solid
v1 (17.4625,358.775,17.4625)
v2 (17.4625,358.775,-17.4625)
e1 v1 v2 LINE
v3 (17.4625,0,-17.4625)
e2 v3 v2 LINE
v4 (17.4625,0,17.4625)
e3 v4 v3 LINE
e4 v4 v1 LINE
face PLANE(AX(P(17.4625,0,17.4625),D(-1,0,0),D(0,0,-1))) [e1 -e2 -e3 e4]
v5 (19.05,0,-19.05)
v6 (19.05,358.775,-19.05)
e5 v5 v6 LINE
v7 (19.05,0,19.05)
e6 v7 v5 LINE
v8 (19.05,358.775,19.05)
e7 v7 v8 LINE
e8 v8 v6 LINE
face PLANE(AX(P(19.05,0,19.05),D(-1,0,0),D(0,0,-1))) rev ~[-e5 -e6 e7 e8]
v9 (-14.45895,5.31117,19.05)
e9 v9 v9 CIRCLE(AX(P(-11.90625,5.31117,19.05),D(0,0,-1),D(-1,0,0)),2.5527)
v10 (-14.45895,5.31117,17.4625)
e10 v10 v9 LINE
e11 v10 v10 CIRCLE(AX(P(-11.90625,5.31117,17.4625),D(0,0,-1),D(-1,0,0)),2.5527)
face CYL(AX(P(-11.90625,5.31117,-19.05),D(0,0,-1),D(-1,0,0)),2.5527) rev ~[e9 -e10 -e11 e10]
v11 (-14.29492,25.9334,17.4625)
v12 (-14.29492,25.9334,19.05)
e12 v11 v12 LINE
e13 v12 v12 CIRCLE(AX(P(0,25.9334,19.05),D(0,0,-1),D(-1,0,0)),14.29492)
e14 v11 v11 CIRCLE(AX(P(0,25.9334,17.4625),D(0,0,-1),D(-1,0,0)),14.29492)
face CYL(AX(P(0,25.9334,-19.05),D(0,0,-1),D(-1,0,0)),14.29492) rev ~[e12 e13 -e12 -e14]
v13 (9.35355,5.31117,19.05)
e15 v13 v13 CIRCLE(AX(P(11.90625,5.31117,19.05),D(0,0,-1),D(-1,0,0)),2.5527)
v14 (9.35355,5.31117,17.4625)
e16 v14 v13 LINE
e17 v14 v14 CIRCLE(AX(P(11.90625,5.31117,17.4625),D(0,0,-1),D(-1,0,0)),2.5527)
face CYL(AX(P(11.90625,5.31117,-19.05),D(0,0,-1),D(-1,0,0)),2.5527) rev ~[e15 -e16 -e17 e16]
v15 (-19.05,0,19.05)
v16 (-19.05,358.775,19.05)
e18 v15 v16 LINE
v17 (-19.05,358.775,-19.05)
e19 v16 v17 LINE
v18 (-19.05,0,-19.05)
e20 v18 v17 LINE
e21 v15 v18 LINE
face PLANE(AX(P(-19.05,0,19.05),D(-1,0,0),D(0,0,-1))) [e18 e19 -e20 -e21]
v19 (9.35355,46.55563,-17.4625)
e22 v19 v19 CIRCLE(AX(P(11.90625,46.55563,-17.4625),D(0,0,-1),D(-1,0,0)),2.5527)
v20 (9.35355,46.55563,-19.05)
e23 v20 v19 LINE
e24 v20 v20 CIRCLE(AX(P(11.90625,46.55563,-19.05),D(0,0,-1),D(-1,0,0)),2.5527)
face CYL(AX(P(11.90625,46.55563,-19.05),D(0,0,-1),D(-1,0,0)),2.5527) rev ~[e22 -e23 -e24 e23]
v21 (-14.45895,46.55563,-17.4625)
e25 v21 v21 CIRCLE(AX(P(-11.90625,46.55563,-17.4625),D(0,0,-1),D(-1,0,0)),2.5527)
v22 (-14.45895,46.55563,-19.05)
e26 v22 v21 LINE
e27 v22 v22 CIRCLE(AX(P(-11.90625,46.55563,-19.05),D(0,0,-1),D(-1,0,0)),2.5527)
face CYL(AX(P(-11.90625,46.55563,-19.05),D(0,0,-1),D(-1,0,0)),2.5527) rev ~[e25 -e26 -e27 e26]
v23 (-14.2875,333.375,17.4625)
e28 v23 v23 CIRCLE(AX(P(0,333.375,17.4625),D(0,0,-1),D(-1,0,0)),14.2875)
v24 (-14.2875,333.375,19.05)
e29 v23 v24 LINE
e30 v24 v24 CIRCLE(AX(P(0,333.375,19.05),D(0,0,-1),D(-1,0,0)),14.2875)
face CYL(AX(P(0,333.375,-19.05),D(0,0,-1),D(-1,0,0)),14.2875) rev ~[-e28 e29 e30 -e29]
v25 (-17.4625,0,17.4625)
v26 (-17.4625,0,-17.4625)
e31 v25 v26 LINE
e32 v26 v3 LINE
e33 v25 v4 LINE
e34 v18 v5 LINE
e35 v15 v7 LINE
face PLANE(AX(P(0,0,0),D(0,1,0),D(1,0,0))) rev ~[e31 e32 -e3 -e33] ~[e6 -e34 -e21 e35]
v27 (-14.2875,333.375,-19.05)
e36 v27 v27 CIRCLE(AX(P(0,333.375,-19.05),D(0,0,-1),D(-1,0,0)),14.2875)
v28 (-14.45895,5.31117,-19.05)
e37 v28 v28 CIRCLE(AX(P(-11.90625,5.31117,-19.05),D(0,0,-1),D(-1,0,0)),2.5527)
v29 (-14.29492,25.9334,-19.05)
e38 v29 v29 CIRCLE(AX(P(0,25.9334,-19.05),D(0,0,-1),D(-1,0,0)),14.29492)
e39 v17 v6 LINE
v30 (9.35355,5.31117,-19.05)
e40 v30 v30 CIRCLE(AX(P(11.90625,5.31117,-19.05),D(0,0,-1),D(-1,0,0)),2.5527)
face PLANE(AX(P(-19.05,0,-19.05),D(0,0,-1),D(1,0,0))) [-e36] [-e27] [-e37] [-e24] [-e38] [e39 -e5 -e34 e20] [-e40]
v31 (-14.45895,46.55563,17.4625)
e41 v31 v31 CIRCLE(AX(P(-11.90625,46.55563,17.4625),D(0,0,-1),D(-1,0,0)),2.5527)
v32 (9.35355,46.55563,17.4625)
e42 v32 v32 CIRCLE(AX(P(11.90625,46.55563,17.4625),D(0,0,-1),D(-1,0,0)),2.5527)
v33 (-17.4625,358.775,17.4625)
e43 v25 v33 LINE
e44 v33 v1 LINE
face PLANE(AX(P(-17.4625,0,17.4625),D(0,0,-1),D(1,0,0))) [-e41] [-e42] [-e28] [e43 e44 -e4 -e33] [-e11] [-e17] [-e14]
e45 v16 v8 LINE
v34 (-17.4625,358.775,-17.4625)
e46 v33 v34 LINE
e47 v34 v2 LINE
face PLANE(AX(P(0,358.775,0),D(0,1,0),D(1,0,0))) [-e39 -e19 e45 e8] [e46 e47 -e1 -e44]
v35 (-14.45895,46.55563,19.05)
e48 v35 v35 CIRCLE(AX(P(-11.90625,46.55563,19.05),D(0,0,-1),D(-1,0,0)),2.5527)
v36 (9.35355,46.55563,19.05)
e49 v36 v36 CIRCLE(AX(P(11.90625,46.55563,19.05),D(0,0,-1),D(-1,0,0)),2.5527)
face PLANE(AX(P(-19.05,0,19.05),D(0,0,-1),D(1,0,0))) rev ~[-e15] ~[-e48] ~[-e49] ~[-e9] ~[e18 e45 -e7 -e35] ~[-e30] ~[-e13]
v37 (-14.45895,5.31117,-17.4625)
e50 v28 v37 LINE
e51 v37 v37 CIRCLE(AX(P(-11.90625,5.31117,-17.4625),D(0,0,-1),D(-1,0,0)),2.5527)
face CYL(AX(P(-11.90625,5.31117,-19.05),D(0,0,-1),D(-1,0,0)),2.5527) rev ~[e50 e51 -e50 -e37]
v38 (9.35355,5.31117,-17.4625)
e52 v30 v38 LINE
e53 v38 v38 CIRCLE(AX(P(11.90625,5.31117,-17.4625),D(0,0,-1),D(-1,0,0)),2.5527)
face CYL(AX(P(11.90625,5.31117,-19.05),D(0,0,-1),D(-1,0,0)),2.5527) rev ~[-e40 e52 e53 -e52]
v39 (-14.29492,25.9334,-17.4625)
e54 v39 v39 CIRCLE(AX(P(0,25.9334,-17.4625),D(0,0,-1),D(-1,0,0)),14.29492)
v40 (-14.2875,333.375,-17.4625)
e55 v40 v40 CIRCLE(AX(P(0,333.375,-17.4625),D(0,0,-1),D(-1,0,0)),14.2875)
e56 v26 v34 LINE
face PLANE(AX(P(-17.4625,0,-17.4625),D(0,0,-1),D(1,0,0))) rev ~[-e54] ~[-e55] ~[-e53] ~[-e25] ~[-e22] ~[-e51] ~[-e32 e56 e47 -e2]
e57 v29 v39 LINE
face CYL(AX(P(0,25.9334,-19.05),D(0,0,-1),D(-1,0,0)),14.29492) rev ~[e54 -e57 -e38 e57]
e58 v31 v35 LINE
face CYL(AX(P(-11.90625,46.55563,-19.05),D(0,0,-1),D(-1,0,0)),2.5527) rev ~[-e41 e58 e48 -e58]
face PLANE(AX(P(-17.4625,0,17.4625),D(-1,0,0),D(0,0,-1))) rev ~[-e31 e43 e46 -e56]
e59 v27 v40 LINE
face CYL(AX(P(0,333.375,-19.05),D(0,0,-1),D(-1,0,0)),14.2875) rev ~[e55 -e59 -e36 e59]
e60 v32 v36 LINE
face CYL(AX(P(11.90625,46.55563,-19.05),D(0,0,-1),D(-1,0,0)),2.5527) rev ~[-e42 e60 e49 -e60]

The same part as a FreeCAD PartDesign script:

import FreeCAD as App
import Part
import Sketcher
Q = App.Units.Quantity


def add_polygon(sketch, points):
    """Adds a closed chain of lines whose ends are joined by coincident constraints."""
    first, n = sketch.GeometryCount, len(points)
    for a, b in zip(points, points[1:] + points[:1]):
        sketch.addGeometry(Part.LineSegment(App.Vector(*a, 0), App.Vector(*b, 0)), False)
    for i in range(n):
        sketch.addConstraint(Sketcher.Constraint("Coincident", first + i, 2, first + (i + 1) % n, 1))

doc = App.newDocument("Part")
params = doc.addObject("Spreadsheet::Sheet", "Params")
for row, (alias, value) in enumerate([
    ("sketch1_width", "1.5 in"),
    ("sketch1_width2", "1.375 in"),
    ("pad1_length", "14.125 in"),
    ("sketch2_diameter", "1.125 in"),
    ("sketch2_diameter2", "0.201 in"),
], start=1):
    params.set(f"A{row}", alias)
    params.set(f"B{row}", "=" + value)
    params.setAlias(f"B{row}", alias)

body = doc.addObject("PartDesign::Body", "Body")

sketch1 = body.newObject("Sketcher::SketchObject", "Sketch")
sketch1.AttachmentSupport = (doc.getObject("XZ_Plane"), [""])
sketch1.MapMode = "FlatFace"
add_polygon(sketch1, [(-19, -19), (-19, 19), (19, 19), (19, -19)])
add_polygon(sketch1, [(17, 17), (-17, 17), (-17, -17), (17, -17)])
sketch1.addConstraint([
    Sketcher.Constraint("Vertical", 0),
    Sketcher.Constraint("Horizontal", 1),
    Sketcher.Constraint("Vertical", 2),
    Sketcher.Constraint("Horizontal", 3),
    Sketcher.Constraint("Horizontal", 4),
    Sketcher.Constraint("Vertical", 5),
    Sketcher.Constraint("Horizontal", 6),
    Sketcher.Constraint("Vertical", 7),
    Sketcher.Constraint("Symmetric", 0, 2, 2, 2, -1, 1),
    Sketcher.Constraint("Symmetric", 4, 2, 6, 2, -1, 1),
    Sketcher.Constraint("Equal", 3, 0),
    Sketcher.Constraint("Equal", 6, 5),
    Sketcher.Constraint("DistanceX", 1, 1, 1, 2, Q("1.5 in")),
    Sketcher.Constraint("DistanceX", 4, 2, 4, 1, Q("1.375 in")),
])
sketch1.setExpression("Constraints[20]", "Params.sketch1_width")
sketch1.setExpression("Constraints[21]", "Params.sketch1_width2")
pad1 = body.newObject("PartDesign::Pad", "Pad")
pad1.Profile = sketch1
pad1.setExpression("Length", "Params.pad1_length")
pad1.Reversed = True

sketch2 = body.newObject("Sketcher::SketchObject", "Sketch001")
sketch2.AttachmentSupport = (doc.getObject("XY_Plane"), [""])
sketch2.MapMode = "FlatFace"
sketch2.AttachmentOffset = App.Placement(App.Vector(0, 0, -0.75 * 25.4), App.Rotation())
sketch2.addGeometry([
    Part.Circle(App.Vector(0, 333.4, 0), App.Vector(0, 0, 1), 14.3),
    Part.Circle(App.Vector(11.9, 5.3, 0), App.Vector(0, 0, 1), 2.6),
    Part.Circle(App.Vector(11.9, 46.6, 0), App.Vector(0, 0, 1), 2.6),
    Part.Circle(App.Vector(-11.9, 46.6, 0), App.Vector(0, 0, 1), 2.6),
    Part.Circle(App.Vector(-11.9, 5.3, 0), App.Vector(0, 0, 1), 2.6),
    Part.Circle(App.Vector(0, 25.9, 0), App.Vector(0, 0, 1), 14.3),
], False)
sketch2.addConstraint([
    Sketcher.Constraint("Equal", 1, 2),
    Sketcher.Constraint("Equal", 2, 3),
    Sketcher.Constraint("Equal", 3, 4),
    Sketcher.Constraint("Symmetric", 2, 3, 3, 3, -2),
    Sketcher.Constraint("Symmetric", 1, 3, 4, 3, -2),
    Sketcher.Constraint("PointOnObject", 0, 3, -2),
    Sketcher.Constraint("PointOnObject", 5, 3, -2),
    Sketcher.Constraint("Vertical", 1, 3, 2, 3),
    Sketcher.Constraint("Diameter", 0, Q("1.125 in")),
    Sketcher.Constraint("Diameter", 1, Q("0.201 in")),
    Sketcher.Constraint("Diameter", 5, 28.58984),
    Sketcher.Constraint("DistanceY", -1, 1, 0, 3, Q("13.125 in")),
    Sketcher.Constraint("DistanceX", -1, 1, 1, 3, Q("0.46875 in")),
    Sketcher.Constraint("DistanceY", -1, 1, 5, 3, Q("1.021 in")),
    Sketcher.Constraint("DistanceY", -1, 1, 1, 3, 5.31117),
    Sketcher.Constraint("DistanceY", -1, 1, 2, 3, 46.55563),
])
sketch2.setExpression("Constraints[8]", "Params.sketch2_diameter")
sketch2.setExpression("Constraints[9]", "Params.sketch2_diameter2")
pocket1 = body.newObject("PartDesign::Pocket", "Pocket")
pocket1.Profile = sketch2
pocket1.Type = "ThroughAll"
pocket1.Reversed = True

doc.recompute()
